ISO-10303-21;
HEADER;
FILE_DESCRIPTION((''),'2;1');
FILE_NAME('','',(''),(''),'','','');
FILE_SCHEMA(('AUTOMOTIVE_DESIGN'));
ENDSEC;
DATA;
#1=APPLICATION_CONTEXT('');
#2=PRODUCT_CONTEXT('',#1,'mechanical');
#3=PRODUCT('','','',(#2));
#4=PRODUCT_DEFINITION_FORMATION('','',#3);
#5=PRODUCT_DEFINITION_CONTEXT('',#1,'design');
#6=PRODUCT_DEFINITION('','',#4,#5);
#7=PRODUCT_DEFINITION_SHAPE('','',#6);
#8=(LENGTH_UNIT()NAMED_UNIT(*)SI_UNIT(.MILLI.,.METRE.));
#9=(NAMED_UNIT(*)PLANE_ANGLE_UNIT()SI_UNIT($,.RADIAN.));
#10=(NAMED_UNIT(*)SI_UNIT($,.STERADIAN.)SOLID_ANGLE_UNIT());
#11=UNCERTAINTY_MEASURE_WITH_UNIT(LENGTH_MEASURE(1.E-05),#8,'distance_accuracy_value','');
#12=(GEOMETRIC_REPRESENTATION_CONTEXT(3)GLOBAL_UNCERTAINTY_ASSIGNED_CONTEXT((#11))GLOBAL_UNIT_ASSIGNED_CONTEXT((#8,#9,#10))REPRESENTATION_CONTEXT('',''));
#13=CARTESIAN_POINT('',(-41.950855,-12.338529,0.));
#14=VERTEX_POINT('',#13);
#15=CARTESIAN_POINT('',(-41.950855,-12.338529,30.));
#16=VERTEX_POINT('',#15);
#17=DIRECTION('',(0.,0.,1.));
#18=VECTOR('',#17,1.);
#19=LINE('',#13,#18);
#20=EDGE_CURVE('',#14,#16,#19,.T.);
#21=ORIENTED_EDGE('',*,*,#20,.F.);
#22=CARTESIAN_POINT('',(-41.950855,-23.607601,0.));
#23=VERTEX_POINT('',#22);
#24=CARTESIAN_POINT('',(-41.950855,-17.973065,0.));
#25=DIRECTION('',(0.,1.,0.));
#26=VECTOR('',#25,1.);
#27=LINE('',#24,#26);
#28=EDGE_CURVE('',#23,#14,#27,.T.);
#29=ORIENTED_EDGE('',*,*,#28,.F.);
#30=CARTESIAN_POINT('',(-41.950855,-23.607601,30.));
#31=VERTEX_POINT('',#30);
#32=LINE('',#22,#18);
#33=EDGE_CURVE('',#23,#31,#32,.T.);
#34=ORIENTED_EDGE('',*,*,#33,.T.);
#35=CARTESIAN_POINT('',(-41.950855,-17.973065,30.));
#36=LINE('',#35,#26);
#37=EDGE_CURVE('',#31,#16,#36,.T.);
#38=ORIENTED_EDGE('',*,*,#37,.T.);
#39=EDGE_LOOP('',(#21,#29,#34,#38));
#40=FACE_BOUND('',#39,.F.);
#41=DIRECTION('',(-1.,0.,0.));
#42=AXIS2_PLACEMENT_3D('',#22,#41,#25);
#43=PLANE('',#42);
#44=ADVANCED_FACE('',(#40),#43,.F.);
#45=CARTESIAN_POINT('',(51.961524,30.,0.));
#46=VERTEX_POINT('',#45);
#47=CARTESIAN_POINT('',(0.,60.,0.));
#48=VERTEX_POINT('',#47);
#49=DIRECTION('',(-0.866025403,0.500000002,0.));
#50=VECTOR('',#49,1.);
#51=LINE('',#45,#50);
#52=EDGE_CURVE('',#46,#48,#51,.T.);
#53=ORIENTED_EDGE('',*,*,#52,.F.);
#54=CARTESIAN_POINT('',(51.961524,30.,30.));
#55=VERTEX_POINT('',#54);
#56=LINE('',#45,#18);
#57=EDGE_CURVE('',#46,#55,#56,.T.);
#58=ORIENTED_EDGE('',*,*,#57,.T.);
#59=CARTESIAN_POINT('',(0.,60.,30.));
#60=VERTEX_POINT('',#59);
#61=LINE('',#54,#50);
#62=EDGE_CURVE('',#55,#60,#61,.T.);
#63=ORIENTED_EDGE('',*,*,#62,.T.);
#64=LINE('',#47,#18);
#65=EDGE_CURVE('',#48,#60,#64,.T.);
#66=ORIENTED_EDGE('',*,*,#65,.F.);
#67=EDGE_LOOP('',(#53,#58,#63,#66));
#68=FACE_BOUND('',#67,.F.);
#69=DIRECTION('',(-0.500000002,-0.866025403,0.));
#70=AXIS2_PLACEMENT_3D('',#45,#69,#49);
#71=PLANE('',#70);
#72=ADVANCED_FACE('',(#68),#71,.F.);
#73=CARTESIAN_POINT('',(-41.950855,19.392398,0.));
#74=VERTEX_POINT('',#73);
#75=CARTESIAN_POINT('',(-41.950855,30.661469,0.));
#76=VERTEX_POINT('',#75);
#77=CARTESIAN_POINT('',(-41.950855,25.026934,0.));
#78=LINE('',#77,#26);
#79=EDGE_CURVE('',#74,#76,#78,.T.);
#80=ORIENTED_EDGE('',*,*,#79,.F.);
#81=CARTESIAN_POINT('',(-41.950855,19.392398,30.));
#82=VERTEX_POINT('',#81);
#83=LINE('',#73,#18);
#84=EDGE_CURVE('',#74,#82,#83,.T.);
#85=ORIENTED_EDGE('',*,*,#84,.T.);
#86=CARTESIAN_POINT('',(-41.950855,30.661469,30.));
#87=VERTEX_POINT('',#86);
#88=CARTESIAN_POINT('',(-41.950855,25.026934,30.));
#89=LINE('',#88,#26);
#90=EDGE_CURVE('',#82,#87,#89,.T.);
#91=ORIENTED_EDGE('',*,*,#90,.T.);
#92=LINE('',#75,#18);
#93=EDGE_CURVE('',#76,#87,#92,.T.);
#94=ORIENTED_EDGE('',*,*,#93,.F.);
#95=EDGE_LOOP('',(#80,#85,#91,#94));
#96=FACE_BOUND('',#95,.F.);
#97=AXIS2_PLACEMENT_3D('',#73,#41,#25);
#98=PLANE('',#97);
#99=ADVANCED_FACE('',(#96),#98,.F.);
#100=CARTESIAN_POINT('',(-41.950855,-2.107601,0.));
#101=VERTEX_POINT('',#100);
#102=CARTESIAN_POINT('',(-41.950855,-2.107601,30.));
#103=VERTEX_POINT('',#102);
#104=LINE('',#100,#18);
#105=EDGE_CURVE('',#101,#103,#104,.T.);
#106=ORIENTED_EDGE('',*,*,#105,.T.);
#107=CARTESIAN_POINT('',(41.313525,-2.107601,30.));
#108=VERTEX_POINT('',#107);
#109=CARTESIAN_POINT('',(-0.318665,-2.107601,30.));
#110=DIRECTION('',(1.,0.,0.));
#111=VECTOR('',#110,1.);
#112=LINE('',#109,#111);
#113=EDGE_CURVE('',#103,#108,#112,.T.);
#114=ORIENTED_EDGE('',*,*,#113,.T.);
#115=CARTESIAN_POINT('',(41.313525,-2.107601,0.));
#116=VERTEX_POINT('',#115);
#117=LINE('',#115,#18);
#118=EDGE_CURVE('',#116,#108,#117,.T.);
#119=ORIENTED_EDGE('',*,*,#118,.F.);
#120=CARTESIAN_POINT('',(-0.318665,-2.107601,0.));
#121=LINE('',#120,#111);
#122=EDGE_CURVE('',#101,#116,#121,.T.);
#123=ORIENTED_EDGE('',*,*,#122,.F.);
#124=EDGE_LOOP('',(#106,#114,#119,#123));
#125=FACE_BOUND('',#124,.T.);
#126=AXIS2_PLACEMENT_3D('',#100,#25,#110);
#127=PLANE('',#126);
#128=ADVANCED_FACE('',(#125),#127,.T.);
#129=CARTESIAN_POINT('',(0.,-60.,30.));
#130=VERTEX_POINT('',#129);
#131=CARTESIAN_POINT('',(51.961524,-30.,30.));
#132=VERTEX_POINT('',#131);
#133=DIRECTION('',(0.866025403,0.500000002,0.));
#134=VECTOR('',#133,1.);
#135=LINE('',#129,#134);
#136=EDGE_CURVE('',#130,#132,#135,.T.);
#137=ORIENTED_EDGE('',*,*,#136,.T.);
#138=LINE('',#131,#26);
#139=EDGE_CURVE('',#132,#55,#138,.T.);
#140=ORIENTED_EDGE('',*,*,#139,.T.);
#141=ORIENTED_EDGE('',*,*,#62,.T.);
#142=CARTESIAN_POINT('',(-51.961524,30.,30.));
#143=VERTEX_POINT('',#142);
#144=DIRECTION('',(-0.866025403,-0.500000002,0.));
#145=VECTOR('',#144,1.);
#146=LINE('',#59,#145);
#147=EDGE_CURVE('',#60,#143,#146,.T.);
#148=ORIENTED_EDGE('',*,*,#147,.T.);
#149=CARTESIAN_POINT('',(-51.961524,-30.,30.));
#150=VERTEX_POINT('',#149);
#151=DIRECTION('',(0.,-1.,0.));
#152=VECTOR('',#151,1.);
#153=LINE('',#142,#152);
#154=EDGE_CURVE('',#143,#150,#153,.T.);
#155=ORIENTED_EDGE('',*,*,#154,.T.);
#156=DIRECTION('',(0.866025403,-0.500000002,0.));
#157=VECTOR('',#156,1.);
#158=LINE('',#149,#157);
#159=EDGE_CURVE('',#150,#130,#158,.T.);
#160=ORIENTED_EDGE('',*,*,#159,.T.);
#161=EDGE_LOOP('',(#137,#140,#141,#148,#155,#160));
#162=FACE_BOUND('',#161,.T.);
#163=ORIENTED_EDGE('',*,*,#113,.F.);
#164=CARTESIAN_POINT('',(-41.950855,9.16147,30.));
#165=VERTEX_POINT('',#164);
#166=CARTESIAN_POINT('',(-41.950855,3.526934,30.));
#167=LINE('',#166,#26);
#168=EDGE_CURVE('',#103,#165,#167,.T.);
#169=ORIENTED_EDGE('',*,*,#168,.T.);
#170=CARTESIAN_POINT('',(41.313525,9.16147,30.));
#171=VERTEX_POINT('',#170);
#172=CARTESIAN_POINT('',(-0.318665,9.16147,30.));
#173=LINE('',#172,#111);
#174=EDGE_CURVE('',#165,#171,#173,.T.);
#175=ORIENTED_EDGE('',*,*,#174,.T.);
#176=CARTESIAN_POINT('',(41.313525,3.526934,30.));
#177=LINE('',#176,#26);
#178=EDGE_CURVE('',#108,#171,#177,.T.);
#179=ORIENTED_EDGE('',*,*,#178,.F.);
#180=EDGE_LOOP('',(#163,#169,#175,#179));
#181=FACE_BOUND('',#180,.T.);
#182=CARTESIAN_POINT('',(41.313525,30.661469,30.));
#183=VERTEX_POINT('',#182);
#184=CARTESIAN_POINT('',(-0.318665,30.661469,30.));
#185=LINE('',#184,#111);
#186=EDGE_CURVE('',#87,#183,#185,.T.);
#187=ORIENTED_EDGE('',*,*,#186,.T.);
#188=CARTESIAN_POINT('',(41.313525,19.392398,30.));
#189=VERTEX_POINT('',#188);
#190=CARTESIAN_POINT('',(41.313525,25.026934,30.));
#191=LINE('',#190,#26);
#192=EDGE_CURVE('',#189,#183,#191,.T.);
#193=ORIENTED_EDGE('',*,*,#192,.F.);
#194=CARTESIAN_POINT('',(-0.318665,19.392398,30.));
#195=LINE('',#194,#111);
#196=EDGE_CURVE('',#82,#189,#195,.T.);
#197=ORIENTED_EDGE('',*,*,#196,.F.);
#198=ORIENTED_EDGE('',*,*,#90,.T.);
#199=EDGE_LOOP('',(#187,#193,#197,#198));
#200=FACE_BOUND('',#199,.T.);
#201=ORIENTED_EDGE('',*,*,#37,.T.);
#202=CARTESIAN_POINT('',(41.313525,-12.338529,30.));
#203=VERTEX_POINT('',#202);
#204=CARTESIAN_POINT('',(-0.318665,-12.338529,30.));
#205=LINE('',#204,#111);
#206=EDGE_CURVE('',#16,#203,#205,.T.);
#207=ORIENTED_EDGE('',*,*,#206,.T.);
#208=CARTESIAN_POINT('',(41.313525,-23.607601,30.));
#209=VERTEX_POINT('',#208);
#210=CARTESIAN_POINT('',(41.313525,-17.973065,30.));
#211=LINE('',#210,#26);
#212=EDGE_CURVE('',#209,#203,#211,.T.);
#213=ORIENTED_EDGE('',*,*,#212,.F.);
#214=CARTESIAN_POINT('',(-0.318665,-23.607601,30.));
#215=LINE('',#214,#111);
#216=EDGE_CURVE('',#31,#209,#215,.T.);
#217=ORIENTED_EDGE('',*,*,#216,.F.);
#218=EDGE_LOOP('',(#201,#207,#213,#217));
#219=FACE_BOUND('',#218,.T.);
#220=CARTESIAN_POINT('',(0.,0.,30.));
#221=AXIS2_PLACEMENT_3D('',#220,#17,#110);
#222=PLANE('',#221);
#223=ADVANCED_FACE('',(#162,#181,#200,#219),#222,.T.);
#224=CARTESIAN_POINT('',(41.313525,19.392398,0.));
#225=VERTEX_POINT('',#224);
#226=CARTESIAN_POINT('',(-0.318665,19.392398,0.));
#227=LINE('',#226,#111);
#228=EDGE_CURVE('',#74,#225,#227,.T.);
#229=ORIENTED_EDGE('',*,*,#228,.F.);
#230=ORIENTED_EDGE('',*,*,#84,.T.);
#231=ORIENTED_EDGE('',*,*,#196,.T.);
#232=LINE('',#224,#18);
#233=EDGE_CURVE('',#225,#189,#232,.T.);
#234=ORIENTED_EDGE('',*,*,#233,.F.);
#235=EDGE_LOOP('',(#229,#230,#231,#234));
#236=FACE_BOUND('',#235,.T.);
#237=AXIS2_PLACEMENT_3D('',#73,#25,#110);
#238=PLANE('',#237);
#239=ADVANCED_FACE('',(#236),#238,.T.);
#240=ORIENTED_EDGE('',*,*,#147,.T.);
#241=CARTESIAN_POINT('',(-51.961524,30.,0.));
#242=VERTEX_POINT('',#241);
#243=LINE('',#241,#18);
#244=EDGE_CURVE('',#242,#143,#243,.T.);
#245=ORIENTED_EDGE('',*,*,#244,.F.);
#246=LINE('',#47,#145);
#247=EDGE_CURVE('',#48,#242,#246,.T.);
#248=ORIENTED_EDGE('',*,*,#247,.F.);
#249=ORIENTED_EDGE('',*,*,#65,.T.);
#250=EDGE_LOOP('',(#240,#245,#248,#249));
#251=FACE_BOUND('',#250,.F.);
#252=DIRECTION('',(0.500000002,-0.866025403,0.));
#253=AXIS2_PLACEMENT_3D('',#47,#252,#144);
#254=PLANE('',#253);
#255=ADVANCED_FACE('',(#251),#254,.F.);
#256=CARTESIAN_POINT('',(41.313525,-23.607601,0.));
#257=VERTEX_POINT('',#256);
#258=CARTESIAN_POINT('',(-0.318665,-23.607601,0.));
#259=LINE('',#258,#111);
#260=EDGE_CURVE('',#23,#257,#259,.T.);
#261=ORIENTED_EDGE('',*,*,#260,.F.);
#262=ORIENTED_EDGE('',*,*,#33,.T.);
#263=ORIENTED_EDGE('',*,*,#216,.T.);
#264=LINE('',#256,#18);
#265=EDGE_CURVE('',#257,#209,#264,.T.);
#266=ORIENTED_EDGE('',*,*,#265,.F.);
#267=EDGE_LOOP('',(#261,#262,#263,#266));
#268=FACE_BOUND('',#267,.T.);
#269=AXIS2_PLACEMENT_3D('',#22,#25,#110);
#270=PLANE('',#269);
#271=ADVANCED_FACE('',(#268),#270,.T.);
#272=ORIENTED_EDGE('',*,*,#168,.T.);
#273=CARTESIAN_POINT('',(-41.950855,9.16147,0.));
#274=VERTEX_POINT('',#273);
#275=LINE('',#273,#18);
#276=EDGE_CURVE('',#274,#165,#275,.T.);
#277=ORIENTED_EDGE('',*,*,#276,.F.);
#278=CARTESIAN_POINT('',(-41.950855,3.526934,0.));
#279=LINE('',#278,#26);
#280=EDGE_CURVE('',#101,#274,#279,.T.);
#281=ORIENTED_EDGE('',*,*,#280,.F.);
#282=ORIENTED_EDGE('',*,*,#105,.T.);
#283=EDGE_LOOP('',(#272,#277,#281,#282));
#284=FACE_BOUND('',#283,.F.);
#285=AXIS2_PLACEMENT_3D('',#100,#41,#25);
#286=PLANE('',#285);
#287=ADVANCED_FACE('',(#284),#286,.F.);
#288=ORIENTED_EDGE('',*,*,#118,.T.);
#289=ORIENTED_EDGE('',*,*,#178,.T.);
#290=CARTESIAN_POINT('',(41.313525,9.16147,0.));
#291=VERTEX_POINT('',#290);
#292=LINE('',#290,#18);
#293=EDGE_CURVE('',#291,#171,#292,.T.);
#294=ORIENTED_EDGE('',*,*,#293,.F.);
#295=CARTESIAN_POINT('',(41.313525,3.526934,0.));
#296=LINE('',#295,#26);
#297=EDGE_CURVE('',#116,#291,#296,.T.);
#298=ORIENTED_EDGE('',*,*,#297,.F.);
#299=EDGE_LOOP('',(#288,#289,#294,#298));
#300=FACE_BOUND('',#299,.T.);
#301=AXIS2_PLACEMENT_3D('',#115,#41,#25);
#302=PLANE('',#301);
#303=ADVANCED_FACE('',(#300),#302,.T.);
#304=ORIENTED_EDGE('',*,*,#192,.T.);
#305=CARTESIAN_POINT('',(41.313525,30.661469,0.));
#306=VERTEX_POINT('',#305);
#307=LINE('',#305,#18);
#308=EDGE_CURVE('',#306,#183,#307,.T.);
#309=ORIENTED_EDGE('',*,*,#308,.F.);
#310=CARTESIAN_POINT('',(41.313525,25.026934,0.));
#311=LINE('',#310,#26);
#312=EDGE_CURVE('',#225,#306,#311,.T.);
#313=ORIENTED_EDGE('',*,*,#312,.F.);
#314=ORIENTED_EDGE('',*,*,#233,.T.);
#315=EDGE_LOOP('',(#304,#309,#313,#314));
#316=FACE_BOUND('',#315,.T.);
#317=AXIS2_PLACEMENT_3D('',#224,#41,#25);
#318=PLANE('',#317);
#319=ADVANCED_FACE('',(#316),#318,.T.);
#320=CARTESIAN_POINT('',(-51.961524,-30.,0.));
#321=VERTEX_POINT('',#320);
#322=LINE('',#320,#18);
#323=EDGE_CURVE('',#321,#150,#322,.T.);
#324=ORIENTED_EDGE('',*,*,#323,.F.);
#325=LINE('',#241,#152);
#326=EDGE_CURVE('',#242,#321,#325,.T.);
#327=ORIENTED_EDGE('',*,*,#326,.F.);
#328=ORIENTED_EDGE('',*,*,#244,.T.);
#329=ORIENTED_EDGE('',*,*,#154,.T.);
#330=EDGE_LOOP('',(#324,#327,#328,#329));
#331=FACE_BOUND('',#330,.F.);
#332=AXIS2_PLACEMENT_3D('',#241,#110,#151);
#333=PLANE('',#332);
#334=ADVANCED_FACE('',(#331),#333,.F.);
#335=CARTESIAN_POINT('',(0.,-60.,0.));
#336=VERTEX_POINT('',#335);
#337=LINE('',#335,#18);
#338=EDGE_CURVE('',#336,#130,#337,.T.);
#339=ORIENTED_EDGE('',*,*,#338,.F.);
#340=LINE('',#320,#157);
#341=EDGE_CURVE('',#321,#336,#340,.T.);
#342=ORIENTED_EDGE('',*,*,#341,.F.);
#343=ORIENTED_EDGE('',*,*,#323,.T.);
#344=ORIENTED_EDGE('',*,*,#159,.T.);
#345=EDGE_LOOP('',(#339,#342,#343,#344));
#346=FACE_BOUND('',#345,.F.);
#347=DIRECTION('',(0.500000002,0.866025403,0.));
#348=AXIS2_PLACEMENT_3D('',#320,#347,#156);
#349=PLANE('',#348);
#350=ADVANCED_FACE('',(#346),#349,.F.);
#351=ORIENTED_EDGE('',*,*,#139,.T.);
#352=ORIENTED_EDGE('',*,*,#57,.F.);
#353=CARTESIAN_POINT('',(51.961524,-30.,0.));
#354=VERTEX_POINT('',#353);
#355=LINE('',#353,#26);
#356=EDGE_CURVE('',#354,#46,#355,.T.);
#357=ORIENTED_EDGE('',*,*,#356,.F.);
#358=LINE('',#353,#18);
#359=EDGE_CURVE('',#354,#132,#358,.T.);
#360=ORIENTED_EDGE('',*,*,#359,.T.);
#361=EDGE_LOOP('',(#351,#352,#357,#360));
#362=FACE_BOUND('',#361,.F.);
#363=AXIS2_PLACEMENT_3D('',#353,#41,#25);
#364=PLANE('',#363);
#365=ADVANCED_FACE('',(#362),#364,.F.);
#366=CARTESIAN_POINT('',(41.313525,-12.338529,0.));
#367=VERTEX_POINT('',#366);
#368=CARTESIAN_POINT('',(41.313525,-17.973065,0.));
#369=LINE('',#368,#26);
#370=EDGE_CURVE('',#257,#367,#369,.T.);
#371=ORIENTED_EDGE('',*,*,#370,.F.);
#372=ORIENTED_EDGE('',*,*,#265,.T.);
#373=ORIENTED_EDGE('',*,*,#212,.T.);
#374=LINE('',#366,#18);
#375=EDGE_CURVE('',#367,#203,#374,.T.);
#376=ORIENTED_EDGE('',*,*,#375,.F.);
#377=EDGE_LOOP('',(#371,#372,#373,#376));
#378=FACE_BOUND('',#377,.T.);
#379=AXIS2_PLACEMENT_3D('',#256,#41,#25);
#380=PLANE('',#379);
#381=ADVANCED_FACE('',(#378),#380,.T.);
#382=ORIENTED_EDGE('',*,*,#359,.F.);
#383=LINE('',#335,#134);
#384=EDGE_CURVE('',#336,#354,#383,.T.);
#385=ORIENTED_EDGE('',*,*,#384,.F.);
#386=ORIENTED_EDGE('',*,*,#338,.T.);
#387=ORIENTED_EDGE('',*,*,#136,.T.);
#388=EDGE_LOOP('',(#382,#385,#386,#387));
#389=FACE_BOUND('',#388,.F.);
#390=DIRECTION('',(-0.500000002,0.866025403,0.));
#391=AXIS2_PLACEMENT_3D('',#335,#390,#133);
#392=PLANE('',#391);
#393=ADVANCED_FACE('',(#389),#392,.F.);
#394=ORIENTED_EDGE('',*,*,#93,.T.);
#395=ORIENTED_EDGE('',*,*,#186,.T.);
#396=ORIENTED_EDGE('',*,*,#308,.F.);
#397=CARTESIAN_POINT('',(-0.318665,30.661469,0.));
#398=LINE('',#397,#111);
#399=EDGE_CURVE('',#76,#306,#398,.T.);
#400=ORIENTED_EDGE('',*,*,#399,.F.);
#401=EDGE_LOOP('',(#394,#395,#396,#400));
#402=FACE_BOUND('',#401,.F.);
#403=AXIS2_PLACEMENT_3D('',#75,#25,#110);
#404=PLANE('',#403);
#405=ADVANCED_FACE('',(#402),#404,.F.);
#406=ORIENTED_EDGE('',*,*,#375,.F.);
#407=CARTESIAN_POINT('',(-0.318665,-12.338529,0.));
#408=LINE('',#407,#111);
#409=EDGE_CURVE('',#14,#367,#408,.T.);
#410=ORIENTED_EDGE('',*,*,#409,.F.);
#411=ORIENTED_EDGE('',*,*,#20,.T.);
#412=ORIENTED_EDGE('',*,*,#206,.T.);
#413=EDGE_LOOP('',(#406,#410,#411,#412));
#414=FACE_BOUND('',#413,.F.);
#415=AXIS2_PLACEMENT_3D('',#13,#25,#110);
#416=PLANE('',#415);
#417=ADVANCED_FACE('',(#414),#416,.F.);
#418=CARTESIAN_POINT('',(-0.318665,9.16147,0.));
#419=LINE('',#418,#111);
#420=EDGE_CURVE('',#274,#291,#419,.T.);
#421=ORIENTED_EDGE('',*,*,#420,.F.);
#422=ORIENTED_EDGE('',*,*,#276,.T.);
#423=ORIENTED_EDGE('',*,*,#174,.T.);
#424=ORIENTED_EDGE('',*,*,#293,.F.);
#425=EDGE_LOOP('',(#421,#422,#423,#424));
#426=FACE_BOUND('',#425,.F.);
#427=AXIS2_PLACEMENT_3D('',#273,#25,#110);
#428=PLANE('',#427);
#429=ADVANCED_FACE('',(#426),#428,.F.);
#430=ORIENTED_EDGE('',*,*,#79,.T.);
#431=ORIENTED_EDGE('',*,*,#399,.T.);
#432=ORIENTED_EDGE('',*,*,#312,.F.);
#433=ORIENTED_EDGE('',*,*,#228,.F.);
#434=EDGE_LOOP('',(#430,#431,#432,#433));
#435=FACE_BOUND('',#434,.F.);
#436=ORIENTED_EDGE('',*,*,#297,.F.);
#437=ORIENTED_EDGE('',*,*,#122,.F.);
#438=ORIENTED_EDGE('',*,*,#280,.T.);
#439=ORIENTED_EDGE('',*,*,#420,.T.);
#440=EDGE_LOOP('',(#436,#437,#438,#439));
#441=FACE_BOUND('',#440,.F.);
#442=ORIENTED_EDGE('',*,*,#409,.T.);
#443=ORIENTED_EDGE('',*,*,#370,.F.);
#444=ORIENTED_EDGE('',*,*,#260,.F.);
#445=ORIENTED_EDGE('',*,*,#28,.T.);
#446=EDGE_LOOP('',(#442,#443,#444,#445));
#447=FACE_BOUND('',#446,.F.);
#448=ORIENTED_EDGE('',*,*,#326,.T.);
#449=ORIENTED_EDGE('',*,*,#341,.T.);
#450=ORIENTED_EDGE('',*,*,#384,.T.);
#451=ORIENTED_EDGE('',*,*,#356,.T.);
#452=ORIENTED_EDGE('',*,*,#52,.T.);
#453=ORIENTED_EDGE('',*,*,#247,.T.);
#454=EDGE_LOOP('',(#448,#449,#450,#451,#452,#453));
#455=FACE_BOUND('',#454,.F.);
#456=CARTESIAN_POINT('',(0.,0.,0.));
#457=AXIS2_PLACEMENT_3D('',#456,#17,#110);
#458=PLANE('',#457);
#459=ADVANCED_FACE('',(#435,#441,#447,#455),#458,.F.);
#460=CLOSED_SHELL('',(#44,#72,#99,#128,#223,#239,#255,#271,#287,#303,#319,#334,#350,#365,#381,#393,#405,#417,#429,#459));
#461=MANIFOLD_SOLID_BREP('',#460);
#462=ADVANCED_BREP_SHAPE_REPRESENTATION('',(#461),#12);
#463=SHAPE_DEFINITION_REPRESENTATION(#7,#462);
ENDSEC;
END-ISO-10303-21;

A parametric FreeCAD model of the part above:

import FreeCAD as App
import Part
import Sketcher
Q = App.Units.Quantity

doc = App.newDocument("Part")
body = doc.addObject("PartDesign::Body", "Body")

sketch1 = body.newObject("Sketcher::SketchObject", "Sketch")
sketch1.AttachmentSupport = (doc.getObject("XY_Plane"), [""])
sketch1.MapMode = "FlatFace"
sketch1.addGeometry([
    Part.LineSegment(App.Vector(51.961524, -30, 0), App.Vector(51.961524, 30, 0)),
    Part.LineSegment(App.Vector(51.961524, 30, 0), App.Vector(0, 60, 0)),
    Part.LineSegment(App.Vector(0, 60, 0), App.Vector(-51.961524, 30, 0)),
    Part.LineSegment(App.Vector(-51.961524, 30, 0), App.Vector(-51.961524, -30, 0)),
    Part.LineSegment(App.Vector(-51.961524, -30, 0), App.Vector(0, -60, 0)),
    Part.LineSegment(App.Vector(0, -60, 0), App.Vector(51.961524, -30, 0)),
    Part.LineSegment(App.Vector(41.313525, -23.607601, 0), App.Vector(-41.950855, -23.607601, 0)),
    Part.LineSegment(App.Vector(-41.950855, -23.607601, 0), App.Vector(-41.950855, -12.338529, 0)),
    Part.LineSegment(App.Vector(-41.950855, -12.338529, 0), App.Vector(41.313525, -12.338529, 0)),
    Part.LineSegment(App.Vector(41.313525, -12.338529, 0), App.Vector(41.313525, -23.607601, 0)),
    Part.LineSegment(App.Vector(41.313525, -2.107601, 0), App.Vector(-41.950855, -2.107601, 0)),
    Part.LineSegment(App.Vector(-41.950855, -2.107601, 0), App.Vector(-41.950855, 9.16147, 0)),
    Part.LineSegment(App.Vector(-41.950855, 9.16147, 0), App.Vector(41.313525, 9.16147, 0)),
    Part.LineSegment(App.Vector(41.313525, 9.16147, 0), App.Vector(41.313525, -2.107601, 0)),
    Part.LineSegment(App.Vector(41.313525, 19.392398, 0), App.Vector(-41.950855, 19.392398, 0)),
    Part.LineSegment(App.Vector(-41.950855, 19.392398, 0), App.Vector(-41.950855, 30.661469, 0)),
    Part.LineSegment(App.Vector(-41.950855, 30.661469, 0), App.Vector(41.313525, 30.661469, 0)),
    Part.LineSegment(App.Vector(41.313525, 30.661469, 0), App.Vector(41.313525, 19.392398, 0)),
], False)
sketch1.addConstraint([
    Sketcher.Constraint("Coincident", 0, 2, 1, 1),
    Sketcher.Constraint("Coincident", 1, 2, 2, 1),
    Sketcher.Constraint("Coincident", 2, 2, 3, 1),
    Sketcher.Constraint("Coincident", 3, 2, 4, 1),
    Sketcher.Constraint("Coincident", 4, 2, 5, 1),
    Sketcher.Constraint("Coincident", 5, 2, 0, 1),
    Sketcher.Constraint("Coincident", 6, 2, 7, 1),
    Sketcher.Constraint("Coincident", 7, 2, 8, 1),
    Sketcher.Constraint("Coincident", 8, 2, 9, 1),
    Sketcher.Constraint("Coincident", 9, 2, 6, 1),
    Sketcher.Constraint("Coincident", 10, 2, 11, 1),
    Sketcher.Constraint("Coincident", 11, 2, 12, 1),
    Sketcher.Constraint("Coincident", 12, 2, 13, 1),
    Sketcher.Constraint("Coincident", 13, 2, 10, 1),
    Sketcher.Constraint("Coincident", 14, 2, 15, 1),
    Sketcher.Constraint("Coincident", 15, 2, 16, 1),
    Sketcher.Constraint("Coincident", 16, 2, 17, 1),
    Sketcher.Constraint("Coincident", 17, 2, 14, 1),
    Sketcher.Constraint("Vertical", 0),
    Sketcher.Constraint("Vertical", 3),
    Sketcher.Constraint("Horizontal", 6),
    Sketcher.Constraint("Vertical", 7),
    Sketcher.Constraint("Horizontal", 8),
    Sketcher.Constraint("Vertical", 9),
    Sketcher.Constraint("Horizontal", 10),
    Sketcher.Constraint("Vertical", 11),
    Sketcher.Constraint("Horizontal", 12),
    Sketcher.Constraint("Vertical", 13),
    Sketcher.Constraint("Horizontal", 14),
    Sketcher.Constraint("Vertical", 15),
    Sketcher.Constraint("Horizontal", 16),
    Sketcher.Constraint("Vertical", 17),
    Sketcher.Constraint("Symmetric", 0, 2, 3, 2, -1, 1),
    Sketcher.Constraint("Symmetric", 1, 2, 4, 2, -1, 1),
    Sketcher.Constraint("PointOnObject", 1, 2, -2),
    Sketcher.Constraint("Parallel", 2, 5),
    Sketcher.Constraint("Horizontal", 0, 2, 2, 2),
    Sketcher.Constraint("Vertical", 7, 2, 10, 2),
    Sketcher.Constraint("Vertical", 9, 2, 12, 2),
    Sketcher.Constraint("Vertical", 11, 2, 14, 2),
    Sketcher.Constraint("Vertical", 13, 2, 16, 2),
    Sketcher.Constraint("Equal", 9, 11),
    Sketcher.Constraint("Equal", 13, 15),
    Sketcher.Constraint("DistanceY", 0, 1, 0, 2, Q("60 mm")),
    Sketcher.Constraint("Angle", 1, Q("150 deg")),
    Sketcher.Constraint("Distance", 1, Q("60 mm")),
    Sketcher.Constraint("DistanceY", 6, 2, 14, 2, Q("42.999999 mm")),
    Sketcher.Constraint("DistanceY", 6, 2, 10, 2, Q("21.499999 mm")),
    Sketcher.Constraint("DistanceX", 8, 2, 5, 2, Q("10.647999 mm")),
    Sketcher.Constraint("DistanceX", 6, 2, 6, 1, Q("83.26438 mm")),
    Sketcher.Constraint("DistanceY", 7, 1, 7, 2, Q("11.269071 mm")),
    Sketcher.Constraint("DistanceY", 6, 2, -1, 1, Q("23.607601 mm")),
])
pad1 = body.newObject("PartDesign::Pad", "Pad")
pad1.Profile = sketch1
pad1.Length = 30

doc.recompute()
